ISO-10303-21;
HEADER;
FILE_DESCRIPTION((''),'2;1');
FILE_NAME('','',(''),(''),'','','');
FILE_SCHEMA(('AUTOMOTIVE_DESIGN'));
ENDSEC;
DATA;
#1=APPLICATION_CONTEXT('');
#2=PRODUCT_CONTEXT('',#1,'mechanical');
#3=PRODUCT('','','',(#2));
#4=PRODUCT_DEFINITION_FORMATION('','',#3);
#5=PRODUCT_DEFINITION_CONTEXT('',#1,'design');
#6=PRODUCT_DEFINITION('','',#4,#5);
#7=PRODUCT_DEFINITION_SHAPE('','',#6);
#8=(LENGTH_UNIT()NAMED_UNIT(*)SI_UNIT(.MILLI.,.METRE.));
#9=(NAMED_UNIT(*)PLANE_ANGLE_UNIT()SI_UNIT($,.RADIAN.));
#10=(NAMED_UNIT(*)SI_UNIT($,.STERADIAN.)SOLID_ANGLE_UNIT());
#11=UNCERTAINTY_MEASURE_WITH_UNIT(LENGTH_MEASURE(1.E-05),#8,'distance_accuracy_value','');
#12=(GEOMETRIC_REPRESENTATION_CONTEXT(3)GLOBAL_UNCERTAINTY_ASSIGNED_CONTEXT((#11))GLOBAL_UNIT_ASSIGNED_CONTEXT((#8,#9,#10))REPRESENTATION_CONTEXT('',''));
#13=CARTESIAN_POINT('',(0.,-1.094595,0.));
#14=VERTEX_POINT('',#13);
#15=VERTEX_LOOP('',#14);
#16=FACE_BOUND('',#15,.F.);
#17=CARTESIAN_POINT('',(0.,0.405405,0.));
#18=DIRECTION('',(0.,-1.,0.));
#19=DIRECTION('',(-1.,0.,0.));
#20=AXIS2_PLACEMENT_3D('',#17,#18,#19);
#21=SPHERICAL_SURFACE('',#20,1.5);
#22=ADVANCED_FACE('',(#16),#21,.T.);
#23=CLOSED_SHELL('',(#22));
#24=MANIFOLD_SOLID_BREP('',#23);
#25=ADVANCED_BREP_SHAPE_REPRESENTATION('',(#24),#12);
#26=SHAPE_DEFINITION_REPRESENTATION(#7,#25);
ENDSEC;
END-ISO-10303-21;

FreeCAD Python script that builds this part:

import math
import FreeCAD as App
import Part
import Sketcher
Q = App.Units.Quantity

doc = App.newDocument("Part")
body = doc.addObject("PartDesign::Body", "Body")

# Sketch on XY plane
sketch1 = body.newObject("Sketcher::SketchObject", "Sketch")
sketch1.AttachmentSupport = (doc.getObject("XY_Plane"), [""])
sketch1.MapMode = "FlatFace"
sketch1.addGeometry(Part.LineSegment(App.Vector(0, -1.094595, 0), App.Vector(0, 1.905405, 0)), False)
sketch1.addGeometry(Part.ArcOfCircle(Part.Circle(App.Vector(0, 0.405405, 0), App.Vector(0, 0, 1), 1.5), math.radians(90), math.radians(270)), False)
sketch1.addConstraint(Sketcher.Constraint("Coincident", 0, 1, 1, 2))
sketch1.addConstraint(Sketcher.Constraint("Coincident", 1, 1, 0, 2))
sketch1.addConstraint(Sketcher.Constraint("Vertical", 0))
sketch1.addConstraint(Sketcher.Constraint("PointOnObject", 1, 3, -2))
sketch1.addConstraint(Sketcher.Constraint("PointOnObject", 0, 1, -2))
sketch1.addConstraint(Sketcher.Constraint("Radius", 1, Q("1.5 mm")))
sketch1.addConstraint(Sketcher.Constraint("DistanceY", -1, 1, 1, 3, Q("0.405405 mm")))
revolution = body.newObject("PartDesign::Revolution", "Revolution")
revolution.Profile = sketch1
revolution.ReferenceAxis = (sketch1, ["V_Axis"])
revolution.Angle = 360

doc.recompute()
